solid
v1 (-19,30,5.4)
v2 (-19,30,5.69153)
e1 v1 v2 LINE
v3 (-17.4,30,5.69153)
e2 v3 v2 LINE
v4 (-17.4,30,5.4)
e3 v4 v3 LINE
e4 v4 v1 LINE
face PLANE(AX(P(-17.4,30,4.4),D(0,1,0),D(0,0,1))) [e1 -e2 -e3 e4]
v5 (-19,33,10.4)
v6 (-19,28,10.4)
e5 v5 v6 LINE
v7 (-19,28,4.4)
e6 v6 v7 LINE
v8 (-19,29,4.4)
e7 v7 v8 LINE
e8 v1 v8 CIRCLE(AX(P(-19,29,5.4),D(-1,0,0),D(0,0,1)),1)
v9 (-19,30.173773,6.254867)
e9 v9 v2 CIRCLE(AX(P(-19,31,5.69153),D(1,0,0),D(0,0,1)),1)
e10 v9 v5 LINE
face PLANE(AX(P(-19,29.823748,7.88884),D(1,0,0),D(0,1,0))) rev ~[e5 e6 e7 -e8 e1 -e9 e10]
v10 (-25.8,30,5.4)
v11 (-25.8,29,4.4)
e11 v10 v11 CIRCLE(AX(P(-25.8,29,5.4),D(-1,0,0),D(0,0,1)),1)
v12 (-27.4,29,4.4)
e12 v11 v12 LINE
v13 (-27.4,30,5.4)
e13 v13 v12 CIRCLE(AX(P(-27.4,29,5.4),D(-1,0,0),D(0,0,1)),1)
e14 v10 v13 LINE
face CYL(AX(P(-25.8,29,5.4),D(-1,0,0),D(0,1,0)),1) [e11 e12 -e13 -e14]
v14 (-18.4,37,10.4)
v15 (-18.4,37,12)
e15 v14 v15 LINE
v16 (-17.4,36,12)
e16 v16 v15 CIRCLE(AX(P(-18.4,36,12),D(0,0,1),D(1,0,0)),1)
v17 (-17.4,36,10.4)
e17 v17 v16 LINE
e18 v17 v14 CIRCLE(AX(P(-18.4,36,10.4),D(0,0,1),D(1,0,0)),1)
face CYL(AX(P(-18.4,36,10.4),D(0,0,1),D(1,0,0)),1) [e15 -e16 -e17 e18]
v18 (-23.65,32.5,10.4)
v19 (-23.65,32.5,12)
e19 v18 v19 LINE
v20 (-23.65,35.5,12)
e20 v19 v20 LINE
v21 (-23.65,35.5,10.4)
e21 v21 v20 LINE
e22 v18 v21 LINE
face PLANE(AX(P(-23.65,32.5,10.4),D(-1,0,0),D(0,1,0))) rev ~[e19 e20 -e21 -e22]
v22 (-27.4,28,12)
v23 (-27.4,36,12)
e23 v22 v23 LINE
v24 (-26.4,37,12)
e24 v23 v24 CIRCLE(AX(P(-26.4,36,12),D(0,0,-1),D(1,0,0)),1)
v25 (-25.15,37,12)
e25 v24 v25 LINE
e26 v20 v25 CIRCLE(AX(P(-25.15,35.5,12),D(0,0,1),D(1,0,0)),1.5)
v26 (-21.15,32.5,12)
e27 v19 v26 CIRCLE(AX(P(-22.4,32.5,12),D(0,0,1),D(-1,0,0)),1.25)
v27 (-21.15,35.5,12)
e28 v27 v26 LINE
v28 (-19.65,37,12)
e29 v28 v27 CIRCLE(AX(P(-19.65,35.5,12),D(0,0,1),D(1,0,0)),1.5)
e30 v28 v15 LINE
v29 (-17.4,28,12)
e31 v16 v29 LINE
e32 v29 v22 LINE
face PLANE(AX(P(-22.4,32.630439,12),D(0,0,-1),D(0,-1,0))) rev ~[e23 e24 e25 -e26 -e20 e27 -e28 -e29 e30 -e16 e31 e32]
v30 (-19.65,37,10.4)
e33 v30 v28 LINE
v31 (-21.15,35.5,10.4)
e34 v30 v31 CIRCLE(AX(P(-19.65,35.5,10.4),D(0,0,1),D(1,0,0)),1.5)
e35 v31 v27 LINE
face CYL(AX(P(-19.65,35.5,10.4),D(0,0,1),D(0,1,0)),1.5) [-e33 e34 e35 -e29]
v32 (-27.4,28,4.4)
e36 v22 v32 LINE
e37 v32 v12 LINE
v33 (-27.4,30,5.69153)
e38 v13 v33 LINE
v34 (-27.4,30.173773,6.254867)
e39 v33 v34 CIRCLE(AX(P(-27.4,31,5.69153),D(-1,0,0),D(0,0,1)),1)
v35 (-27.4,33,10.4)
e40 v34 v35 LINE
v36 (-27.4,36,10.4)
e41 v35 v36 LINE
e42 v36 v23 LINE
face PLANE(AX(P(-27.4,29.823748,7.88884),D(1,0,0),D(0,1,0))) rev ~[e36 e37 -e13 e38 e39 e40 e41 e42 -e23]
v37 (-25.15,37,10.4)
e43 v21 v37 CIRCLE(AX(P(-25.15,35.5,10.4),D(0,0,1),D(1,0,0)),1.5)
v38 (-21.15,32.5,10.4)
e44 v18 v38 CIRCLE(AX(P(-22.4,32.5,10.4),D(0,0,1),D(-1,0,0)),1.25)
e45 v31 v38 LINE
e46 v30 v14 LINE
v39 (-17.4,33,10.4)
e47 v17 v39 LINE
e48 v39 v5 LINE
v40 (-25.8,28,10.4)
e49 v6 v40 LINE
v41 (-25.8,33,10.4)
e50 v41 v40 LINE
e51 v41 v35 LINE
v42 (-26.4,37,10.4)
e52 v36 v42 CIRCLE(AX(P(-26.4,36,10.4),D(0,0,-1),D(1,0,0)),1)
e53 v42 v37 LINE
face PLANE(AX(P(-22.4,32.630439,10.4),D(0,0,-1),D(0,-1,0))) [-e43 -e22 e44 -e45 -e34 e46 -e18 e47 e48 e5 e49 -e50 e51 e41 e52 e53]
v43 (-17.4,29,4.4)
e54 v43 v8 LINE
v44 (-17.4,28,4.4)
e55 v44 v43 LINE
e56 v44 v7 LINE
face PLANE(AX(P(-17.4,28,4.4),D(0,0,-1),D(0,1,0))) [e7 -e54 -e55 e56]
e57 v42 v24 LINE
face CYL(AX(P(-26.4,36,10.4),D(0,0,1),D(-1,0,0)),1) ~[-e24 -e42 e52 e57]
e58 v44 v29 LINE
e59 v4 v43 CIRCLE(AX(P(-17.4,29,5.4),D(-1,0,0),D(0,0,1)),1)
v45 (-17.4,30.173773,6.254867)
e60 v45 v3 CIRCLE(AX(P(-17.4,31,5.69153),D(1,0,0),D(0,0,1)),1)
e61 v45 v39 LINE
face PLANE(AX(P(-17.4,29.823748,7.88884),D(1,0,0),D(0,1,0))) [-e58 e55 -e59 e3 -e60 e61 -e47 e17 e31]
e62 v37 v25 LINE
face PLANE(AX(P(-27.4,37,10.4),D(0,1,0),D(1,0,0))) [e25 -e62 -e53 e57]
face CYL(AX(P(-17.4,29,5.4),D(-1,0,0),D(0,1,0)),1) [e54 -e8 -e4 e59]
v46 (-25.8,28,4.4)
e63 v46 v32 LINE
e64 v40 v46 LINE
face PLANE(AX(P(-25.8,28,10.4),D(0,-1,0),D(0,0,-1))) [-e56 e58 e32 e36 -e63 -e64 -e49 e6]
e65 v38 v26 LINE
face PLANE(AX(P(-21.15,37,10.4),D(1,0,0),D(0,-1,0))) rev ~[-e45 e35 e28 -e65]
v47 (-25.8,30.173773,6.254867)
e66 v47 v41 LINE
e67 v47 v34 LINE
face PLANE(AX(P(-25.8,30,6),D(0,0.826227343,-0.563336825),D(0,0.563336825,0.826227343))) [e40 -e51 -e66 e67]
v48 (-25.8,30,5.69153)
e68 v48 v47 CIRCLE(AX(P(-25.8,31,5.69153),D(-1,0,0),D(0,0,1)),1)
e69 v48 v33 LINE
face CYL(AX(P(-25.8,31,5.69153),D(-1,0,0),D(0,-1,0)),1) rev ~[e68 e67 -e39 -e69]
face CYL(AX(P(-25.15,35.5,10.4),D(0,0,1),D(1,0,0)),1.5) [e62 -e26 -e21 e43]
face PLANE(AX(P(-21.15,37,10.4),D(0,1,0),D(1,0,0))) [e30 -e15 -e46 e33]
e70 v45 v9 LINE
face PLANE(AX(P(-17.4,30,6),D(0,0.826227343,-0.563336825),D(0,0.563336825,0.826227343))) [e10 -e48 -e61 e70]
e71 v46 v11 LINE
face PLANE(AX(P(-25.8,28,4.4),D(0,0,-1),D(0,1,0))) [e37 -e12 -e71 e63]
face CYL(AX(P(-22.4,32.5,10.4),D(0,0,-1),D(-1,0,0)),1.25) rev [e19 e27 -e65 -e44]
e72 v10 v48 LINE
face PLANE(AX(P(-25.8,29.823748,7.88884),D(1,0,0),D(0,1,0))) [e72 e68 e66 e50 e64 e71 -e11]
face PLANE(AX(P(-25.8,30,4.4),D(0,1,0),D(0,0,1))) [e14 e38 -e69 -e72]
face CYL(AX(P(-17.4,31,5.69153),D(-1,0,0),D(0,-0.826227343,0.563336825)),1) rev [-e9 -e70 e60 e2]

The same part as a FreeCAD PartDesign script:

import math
import FreeCAD as App
import Part
import Sketcher

V = App.Vector


def edges_at(feature, points):
    """Names of the edges that pass closest to the given points."""
    edges = feature.Shape.Edges
    near = lambda p: min(range(len(edges)), key=lambda i: edges[i].distToShape(Part.Vertex(*p))[0])
    return sorted({f"Edge{near(p) + 1}" for p in points})

doc = App.newDocument("Part")
body = doc.addObject("PartDesign::Body", "Body")

sketch1 = doc.addObject("Sketcher::SketchObject", "Sketch")
body.addObject(sketch1)
sketch1.AttachmentSupport = (doc.XY_Plane, [""])
sketch1.MapMode = "FlatFace"
sketch1.addGeometry(Part.LineSegment(V(4.5, 5, 0), V(-4.5, 5, 0)), False)
sketch1.addGeometry(Part.LineSegment(V(-4.5, 5, 0), V(-4.5, -5, 0)), False)
sketch1.addGeometry(Part.LineSegment(V(-4.5, -5, 0), V(4.5, -5, 0)), False)
sketch1.addGeometry(Part.LineSegment(V(4.5, -5, 0), V(4.5, -1.2, 0)), False)
sketch1.addGeometry(Part.LineSegment(V(4.5, -1.2, 0), V(0, -1.2, 0)), False)
sketch1.addGeometry(Part.ArcOfCircle(Part.Circle(V(0, 0, 0), V(0, 0, 1), 1.2), math.radians(90), math.radians(270)), False)
sketch1.addGeometry(Part.LineSegment(V(0, 1.2, 0), V(4.5, 1.2, 0)), False)
sketch1.addGeometry(Part.LineSegment(V(4.5, 1.2, 0), V(4.5, 5, 0)), False)
sketch1.addConstraint(Sketcher.Constraint("Coincident", 0, 2, 1, 1))
sketch1.addConstraint(Sketcher.Constraint("Coincident", 1, 2, 2, 1))
sketch1.addConstraint(Sketcher.Constraint("Coincident", 2, 2, 3, 1))
sketch1.addConstraint(Sketcher.Constraint("Coincident", 3, 2, 4, 1))
sketch1.addConstraint(Sketcher.Constraint("Tangent", 4, 2, 5, 2))
sketch1.addConstraint(Sketcher.Constraint("Tangent", 5, 1, 6, 1))
sketch1.addConstraint(Sketcher.Constraint("Coincident", 6, 2, 7, 1))
sketch1.addConstraint(Sketcher.Constraint("Coincident", 7, 2, 0, 1))
sketch1.addConstraint(Sketcher.Constraint("Horizontal", 0))
sketch1.addConstraint(Sketcher.Constraint("Vertical", 1))
sketch1.addConstraint(Sketcher.Constraint("Horizontal", 2))
sketch1.addConstraint(Sketcher.Constraint("Vertical", 3))
sketch1.addConstraint(Sketcher.Constraint("Horizontal", 4))
sketch1.addConstraint(Sketcher.Constraint("Horizontal", 6))
sketch1.addConstraint(Sketcher.Constraint("Vertical", 7))
sketch1.addConstraint(Sketcher.Constraint("Coincident", 5, 3, -1, 1))
sketch1.addConstraint(Sketcher.Constraint("Symmetric", 0, 2, 2, 2, -1, 1))
sketch1.addConstraint(Sketcher.Constraint("Vertical", 3, 2, 6, 2))
sketch1.addConstraint(Sketcher.Constraint("DistanceX", 0, 2, 0, 1, 9.0))
sketch1.addConstraint(Sketcher.Constraint("DistanceY", 1, 2, 1, 1, 10.0))
sketch1.addConstraint(Sketcher.Constraint("Radius", 5, 1.25))
pad1 = doc.addObject("PartDesign::Pad", "Pad")
body.addObject(pad1)
pad1.Profile = sketch1
pad1.Length = 1.6

sketch2 = doc.addObject("Sketcher::SketchObject", "Sketch001")
body.addObject(sketch2)
sketch2.AttachmentSupport = (doc.XZ_Plane, [""])
sketch2.MapMode = "FlatFace"
sketch2.AttachmentOffset = App.Placement(V(0, 0, 5), App.Rotation())
sketch2.addGeometry(Part.LineSegment(V(-4.5, 0, 0), V(-4.5, -6, 0)), False)
sketch2.addGeometry(Part.LineSegment(V(-4.5, -6, 0), V(-2.5, -6, 0)), False)
sketch2.addGeometry(Part.LineSegment(V(-2.5, -6, 0), V(-2.5, -4.4, 0)), False)
sketch2.addGeometry(Part.LineSegment(V(-2.5, -4.4, 0), V(0.5, 0, 0)), False)
sketch2.addGeometry(Part.LineSegment(V(0.5, 0, 0), V(-4.5, 0, 0)), False)
sketch2.addConstraint(Sketcher.Constraint("Coincident", 0, 2, 1, 1))
sketch2.addConstraint(Sketcher.Constraint("Coincident", 1, 2, 2, 1))
sketch2.addConstraint(Sketcher.Constraint("Coincident", 2, 2, 3, 1))
sketch2.addConstraint(Sketcher.Constraint("Coincident", 3, 2, 4, 1))
sketch2.addConstraint(Sketcher.Constraint("Coincident", 4, 2, 0, 1))
sketch2.addConstraint(Sketcher.Constraint("Vertical", 0))
sketch2.addConstraint(Sketcher.Constraint("Horizontal", 1))
sketch2.addConstraint(Sketcher.Constraint("Vertical", 2))
sketch2.addConstraint(Sketcher.Constraint("Horizontal", 4))
sketch2.addConstraint(Sketcher.Constraint("PointOnObject", 3, 2, -1))
sketch2.addConstraint(Sketcher.Constraint("DistanceX", 1, 1, 1, 2, 2.0))
sketch2.addConstraint(Sketcher.Constraint("DistanceX", 4, 2, 4, 1, 5.0))
sketch2.addConstraint(Sketcher.Constraint("DistanceY", 0, 2, 0, 1, 6.0))
sketch2.addConstraint(Sketcher.Constraint("DistanceY", 2, 1, 2, 2, 1.6))
sketch2.addConstraint(Sketcher.Constraint("DistanceX", 0, 2, -1, 1, 4.5))
pad2 = doc.addObject("PartDesign::Pad", "Pad001")
body.addObject(pad2)
pad2.Profile = sketch2
pad2.Length = 1.6
pad2.Reversed = True
doc.recompute()

linearpattern = doc.addObject("PartDesign::LinearPattern", "LinearPattern")
body.addObject(linearpattern)
linearpattern.Originals = [pad2]
linearpattern.Direction = (doc.Y_Axis, [""])
linearpattern.Mode = "offset"
linearpattern.Offset = 8.4
linearpattern.Occurrences = 2
body.Tip = linearpattern
doc.recompute()

fillet = doc.addObject("PartDesign::Fillet", "Fillet")
body.addObject(fillet)
fillet.Base = (linearpattern, edges_at(linearpattern, [(-2.5, -4.2, -6), (-2.5, 4.2, -6)]))
fillet.Radius = 1
doc.recompute()

fillet2 = doc.addObject("PartDesign::Fillet", "Fillet001")
body.addObject(fillet2)
fillet2.Base = (fillet, edges_at(fillet, [(-2.5, -4.2, -4.4), (-2.5, 4.2, -4.4)]))
fillet2.Radius = 1
doc.recompute()

fillet3 = doc.addObject("PartDesign::Fillet", "Fillet002")
body.addObject(fillet3)
fillet3.Base = (fillet2, edges_at(fillet2, [(4.5, -5, 0.8), (4.5, 5, 0.8)]))
fillet3.Radius = 1
doc.recompute()

fillet4 = doc.addObject("PartDesign::Fillet", "Fillet003")
body.addObject(fillet4)
fillet4.Base = (fillet3, edges_at(fillet3, [(4.5, -1.25, 0.8), (4.5, 1.25, 0.8)]))
fillet4.Radius = 1.5
body2 = doc.addObject("PartDesign::Body", "Body001")
doc.recompute()

body.Placement = App.Placement(V(-22.4, 32.5, 10.4), App.Rotation(V(0, 0, 1), 90))
boolean = doc.addObject("PartDesign::Boolean", "Boolean")
body2.addObject(boolean)
boolean.Type = "Fuse"
boolean.addObjects([body])

doc.recompute()
